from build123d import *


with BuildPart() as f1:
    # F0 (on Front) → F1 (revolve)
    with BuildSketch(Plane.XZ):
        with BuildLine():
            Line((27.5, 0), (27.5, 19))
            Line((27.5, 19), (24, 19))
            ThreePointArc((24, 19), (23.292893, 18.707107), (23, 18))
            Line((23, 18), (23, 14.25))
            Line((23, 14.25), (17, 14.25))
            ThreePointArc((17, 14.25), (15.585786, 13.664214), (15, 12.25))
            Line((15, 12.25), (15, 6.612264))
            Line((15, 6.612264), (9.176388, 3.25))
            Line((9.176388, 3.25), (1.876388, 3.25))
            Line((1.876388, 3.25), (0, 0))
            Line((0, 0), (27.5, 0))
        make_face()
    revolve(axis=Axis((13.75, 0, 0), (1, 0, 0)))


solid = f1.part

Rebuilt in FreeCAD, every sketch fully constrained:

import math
import FreeCAD as App
import Part
import Sketcher
Q = App.Units.Quantity

doc = App.newDocument("Part")
body = doc.addObject("PartDesign::Body", "Body")

# Sketch on XZ plane
sketch1 = body.newObject("Sketcher::SketchObject", "Sketch")
sketch1.AttachmentSupport = (doc.getObject("XZ_Plane"), [""])
sketch1.MapMode = "FlatFace"
sketch1.addGeometry([
    Part.LineSegment(App.Vector(27.5, 0, 0), App.Vector(27.5, 19, 0)),  # 0
    Part.LineSegment(App.Vector(27.5, 19, 0), App.Vector(24, 19, 0)),  # 1
    Part.ArcOfCircle(Part.Circle(App.Vector(23.999999, 18.000001, 0), App.Vector(0, 0, 1), 0.999999), math.radians(89.999957), math.radians(180.000043)),  # 2
    Part.LineSegment(App.Vector(23, 18, 0), App.Vector(23, 14.25, 0)),  # 3
    Part.LineSegment(App.Vector(23, 14.25, 0), App.Vector(17, 14.25, 0)),  # 4
    Part.ArcOfCircle(Part.Circle(App.Vector(16.999999, 12.250001, 0), App.Vector(0, 0, 1), 1.999999), math.radians(89.999957), math.radians(180.000043)),  # 5
    Part.LineSegment(App.Vector(15, 12.25, 0), App.Vector(15, 6.612264, 0)),  # 6
    Part.LineSegment(App.Vector(15, 6.612264, 0), App.Vector(9.176388, 3.25, 0)),  # 7
    Part.LineSegment(App.Vector(9.176388, 3.25, 0), App.Vector(1.876388, 3.25, 0)),  # 8
    Part.LineSegment(App.Vector(1.876388, 3.25, 0), App.Vector(0, 0, 0)),  # 9
    Part.LineSegment(App.Vector(0, 0, 0), App.Vector(27.5, 0, 0)),  # 10
], False)
sketch1.addConstraint([
    Sketcher.Constraint("Coincident", 0, 2, 1, 1),
    Sketcher.Constraint("Tangent", 1, 2, 2, 1),
    Sketcher.Constraint("Tangent", 2, 2, 3, 1),
    Sketcher.Constraint("Coincident", 3, 2, 4, 1),
    Sketcher.Constraint("Tangent", 4, 2, 5, 1),
    Sketcher.Constraint("Tangent", 5, 2, 6, 1),
    Sketcher.Constraint("Coincident", 6, 2, 7, 1),
    Sketcher.Constraint("Coincident", 7, 2, 8, 1),
    Sketcher.Constraint("Coincident", 8, 2, 9, 1),
    Sketcher.Constraint("Coincident", 9, 2, 10, 1),
    Sketcher.Constraint("Coincident", 10, 2, 0, 1),
    Sketcher.Constraint("Vertical", 0),
    Sketcher.Constraint("Horizontal", 1),
    Sketcher.Constraint("Vertical", 3),
    Sketcher.Constraint("Horizontal", 4),
    Sketcher.Constraint("Vertical", 6),
    Sketcher.Constraint("Horizontal", 8),
    Sketcher.Constraint("Horizontal", 10),
    Sketcher.Constraint("Coincident", 9, 2, -1, 1),
    Sketcher.Constraint("Radius", 2, Q("0.999999 mm")),
    Sketcher.Constraint("Radius", 5, Q("1.999999 mm")),
    Sketcher.Constraint("DistanceX", 4, 2, 4, 1, Q("6 mm")),
    Sketcher.Constraint("DistanceY", 0, 1, 0, 2, Q("19 mm")),
    Sketcher.Constraint("Angle", 7, Q("-150 deg")),
    Sketcher.Constraint("Angle", 9, Q("-119.999995 deg")),
    Sketcher.Constraint("DistanceX", 1, 2, 1, 1, Q("3.5 mm")),
    Sketcher.Constraint("DistanceX", 8, 2, 8, 1, Q("7.3 mm")),
    Sketcher.Constraint("DistanceX", 10, 1, 10, 2, Q("27.5 mm")),
    Sketcher.Constraint("DistanceY", 7, 2, 5, 2, Q("9 mm")),
    Sketcher.Constraint("DistanceY", 3, 2, 3, 1, Q("3.75 mm")),
])
revolution = body.newObject("PartDesign::Revolution", "Revolution")
revolution.Profile = sketch1
revolution.ReferenceAxis = (sketch1, ["H_Axis"])
revolution.Angle = 360

doc.recompute()
